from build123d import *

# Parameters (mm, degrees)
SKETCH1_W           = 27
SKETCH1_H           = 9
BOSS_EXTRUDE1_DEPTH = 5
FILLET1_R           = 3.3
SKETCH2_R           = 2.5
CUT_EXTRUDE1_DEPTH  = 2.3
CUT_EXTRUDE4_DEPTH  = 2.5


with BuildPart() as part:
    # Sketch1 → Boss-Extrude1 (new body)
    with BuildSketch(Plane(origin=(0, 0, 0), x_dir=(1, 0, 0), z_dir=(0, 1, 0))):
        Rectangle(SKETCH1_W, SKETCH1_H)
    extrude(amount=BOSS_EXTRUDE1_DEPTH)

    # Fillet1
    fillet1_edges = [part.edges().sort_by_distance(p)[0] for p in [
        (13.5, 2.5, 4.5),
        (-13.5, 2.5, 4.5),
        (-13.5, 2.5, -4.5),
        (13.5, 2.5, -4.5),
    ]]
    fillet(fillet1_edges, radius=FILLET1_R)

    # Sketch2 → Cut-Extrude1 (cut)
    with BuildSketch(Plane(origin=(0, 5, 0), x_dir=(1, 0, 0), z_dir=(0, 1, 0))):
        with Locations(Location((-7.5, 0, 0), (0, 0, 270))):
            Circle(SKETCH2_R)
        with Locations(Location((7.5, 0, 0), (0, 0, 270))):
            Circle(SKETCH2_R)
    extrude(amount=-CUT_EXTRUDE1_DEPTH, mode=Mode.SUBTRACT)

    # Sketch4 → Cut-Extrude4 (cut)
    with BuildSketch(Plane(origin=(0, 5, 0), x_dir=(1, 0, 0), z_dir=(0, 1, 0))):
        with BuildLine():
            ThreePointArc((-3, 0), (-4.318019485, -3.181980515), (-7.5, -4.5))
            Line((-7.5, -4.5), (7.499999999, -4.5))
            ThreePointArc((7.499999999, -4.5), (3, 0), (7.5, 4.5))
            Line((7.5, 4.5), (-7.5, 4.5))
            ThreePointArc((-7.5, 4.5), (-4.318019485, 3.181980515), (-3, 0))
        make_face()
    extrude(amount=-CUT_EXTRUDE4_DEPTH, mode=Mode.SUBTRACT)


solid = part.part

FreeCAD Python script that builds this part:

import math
import FreeCAD as App
import Part
import Sketcher
Q = App.Units.Quantity


def edges_at(feature, points):
    """Names of the edges that pass closest to the given points."""
    edges = feature.Shape.Edges
    near = lambda p: min(range(len(edges)), key=lambda i: edges[i].distToShape(Part.Vertex(*p))[0])
    return sorted({f"Edge{near(p) + 1}" for p in points})


def add_polygon(sketch, points):
    """Adds a closed chain of lines whose ends are joined by coincident constraints."""
    first, n = sketch.GeometryCount, len(points)
    for a, b in zip(points, points[1:] + points[:1]):
        sketch.addGeometry(Part.LineSegment(App.Vector(*a, 0), App.Vector(*b, 0)), False)
    for i in range(n):
        sketch.addConstraint(Sketcher.Constraint("Coincident", first + i, 2, first + (i + 1) % n, 1))

doc = App.newDocument("Part")
body = doc.addObject("PartDesign::Body", "Body")

# Sketch on XZ plane
sketch1 = body.newObject("Sketcher::SketchObject", "Sketch")
sketch1.AttachmentSupport = (doc.getObject("XZ_Plane"), [""])
sketch1.MapMode = "FlatFace"
add_polygon(sketch1, [(-14, -4), (-14, 4), (14, 4), (14, -4)])  # lines 0-3
sketch1.addConstraint([
    Sketcher.Constraint("Vertical", 0),
    Sketcher.Constraint("Horizontal", 1),
    Sketcher.Constraint("Vertical", 2),
    Sketcher.Constraint("Horizontal", 3),
    Sketcher.Constraint("Symmetric", 0, 2, 2, 2, -1, 1),
    Sketcher.Constraint("DistanceX", 1, 1, 1, 2, Q("27 mm")),
    Sketcher.Constraint("DistanceY", 0, 1, 0, 2, Q("9 mm")),
])
pad1 = body.newObject("PartDesign::Pad", "Pad")
pad1.Profile = sketch1
pad1.Length = 5
pad1.Reversed = True
doc.recompute()

fillet = body.newObject("PartDesign::Fillet", "Fillet")
fillet.Base = (pad1, edges_at(pad1, [
    (13.5, 2.5, 4.5),
    (-13.5, 2.5, 4.5),
    (-13.5, 2.5, -4.5),
    (13.5, 2.5, -4.5),
]))
fillet.Radius = 3.3

# Sketch on XZ plane
sketch2 = body.newObject("Sketcher::SketchObject", "Sketch001")
sketch2.AttachmentSupport = (doc.getObject("XZ_Plane"), [""])
sketch2.MapMode = "FlatFace"
sketch2.AttachmentOffset = App.Placement(App.Vector(0, 0, -5), App.Rotation())
sketch2.addGeometry([
    Part.Circle(App.Vector(-7.5, 0, 0), App.Vector(0, 0, 1), 2.5),
    Part.Circle(App.Vector(7.5, 0, 0), App.Vector(0, 0, 1), 2.5),
], False)
sketch2.addConstraint([
    Sketcher.Constraint("Equal", 0, 1),
    Sketcher.Constraint("Symmetric", 0, 3, 1, 3, -1, 1),
    Sketcher.Constraint("PointOnObject", 0, 3, -1),
    Sketcher.Constraint("Diameter", 0, Q("5 mm")),
    Sketcher.Constraint("DistanceX", 0, 3, 1, 3, Q("15 mm")),
])
pocket1 = body.newObject("PartDesign::Pocket", "Pocket")
pocket1.Profile = sketch2
pocket1.Length = 2.3
pocket1.Reversed = True

# Sketch on XZ plane
sketch3 = body.newObject("Sketcher::SketchObject", "Sketch002")
sketch3.AttachmentSupport = (doc.getObject("XZ_Plane"), [""])
sketch3.MapMode = "FlatFace"
sketch3.AttachmentOffset = App.Placement(App.Vector(0, 0, -5), App.Rotation())
sketch3.addGeometry([
    Part.ArcOfCircle(Part.Circle(App.Vector(-7.5, 0, 0), App.Vector(0, 0, 1), 4.5), math.radians(0), math.radians(90)),  # 0
    Part.LineSegment(App.Vector(-7.5, 4.5, 0), App.Vector(7.5, 4.5, 0)),  # 1
    Part.ArcOfCircle(Part.Circle(App.Vector(7.5, 0, 0), App.Vector(0, 0, 1), 4.5), math.radians(90), math.radians(270)),  # 2
    Part.LineSegment(App.Vector(7.5, -4.5, 0), App.Vector(-7.5, -4.5, 0)),  # 3
    Part.ArcOfCircle(Part.Circle(App.Vector(-7.5, 0, 0), App.Vector(0, 0, 1), 4.5), math.radians(-90), math.radians(0)),  # 4
], False)
sketch3.addConstraint([
    Sketcher.Constraint("Tangent", 0, 2, 1, 1),
    Sketcher.Constraint("Tangent", 1, 2, 2, 1),
    Sketcher.Constraint("Tangent", 2, 2, 3, 1),
    Sketcher.Constraint("Tangent", 3, 2, 4, 1),
    Sketcher.Constraint("Tangent", 4, 2, 0, 1),
    Sketcher.Constraint("Horizontal", 1),
    Sketcher.Constraint("Horizontal", 3),
    Sketcher.Constraint("Equal", 0, 2),
    Sketcher.Constraint("Symmetric", 0, 3, 2, 3, -1, 1),
    Sketcher.Constraint("PointOnObject", 4, 2, -1),
    Sketcher.Constraint("Radius", 0, Q("4.5 mm")),
    Sketcher.Constraint("DistanceX", 1, 1, 1, 2, Q("15 mm")),
])
pocket2 = body.newObject("PartDesign::Pocket", "Pocket001")
pocket2.Profile = sketch3
pocket2.Length = 2.5
pocket2.Reversed = True

doc.recompute()
